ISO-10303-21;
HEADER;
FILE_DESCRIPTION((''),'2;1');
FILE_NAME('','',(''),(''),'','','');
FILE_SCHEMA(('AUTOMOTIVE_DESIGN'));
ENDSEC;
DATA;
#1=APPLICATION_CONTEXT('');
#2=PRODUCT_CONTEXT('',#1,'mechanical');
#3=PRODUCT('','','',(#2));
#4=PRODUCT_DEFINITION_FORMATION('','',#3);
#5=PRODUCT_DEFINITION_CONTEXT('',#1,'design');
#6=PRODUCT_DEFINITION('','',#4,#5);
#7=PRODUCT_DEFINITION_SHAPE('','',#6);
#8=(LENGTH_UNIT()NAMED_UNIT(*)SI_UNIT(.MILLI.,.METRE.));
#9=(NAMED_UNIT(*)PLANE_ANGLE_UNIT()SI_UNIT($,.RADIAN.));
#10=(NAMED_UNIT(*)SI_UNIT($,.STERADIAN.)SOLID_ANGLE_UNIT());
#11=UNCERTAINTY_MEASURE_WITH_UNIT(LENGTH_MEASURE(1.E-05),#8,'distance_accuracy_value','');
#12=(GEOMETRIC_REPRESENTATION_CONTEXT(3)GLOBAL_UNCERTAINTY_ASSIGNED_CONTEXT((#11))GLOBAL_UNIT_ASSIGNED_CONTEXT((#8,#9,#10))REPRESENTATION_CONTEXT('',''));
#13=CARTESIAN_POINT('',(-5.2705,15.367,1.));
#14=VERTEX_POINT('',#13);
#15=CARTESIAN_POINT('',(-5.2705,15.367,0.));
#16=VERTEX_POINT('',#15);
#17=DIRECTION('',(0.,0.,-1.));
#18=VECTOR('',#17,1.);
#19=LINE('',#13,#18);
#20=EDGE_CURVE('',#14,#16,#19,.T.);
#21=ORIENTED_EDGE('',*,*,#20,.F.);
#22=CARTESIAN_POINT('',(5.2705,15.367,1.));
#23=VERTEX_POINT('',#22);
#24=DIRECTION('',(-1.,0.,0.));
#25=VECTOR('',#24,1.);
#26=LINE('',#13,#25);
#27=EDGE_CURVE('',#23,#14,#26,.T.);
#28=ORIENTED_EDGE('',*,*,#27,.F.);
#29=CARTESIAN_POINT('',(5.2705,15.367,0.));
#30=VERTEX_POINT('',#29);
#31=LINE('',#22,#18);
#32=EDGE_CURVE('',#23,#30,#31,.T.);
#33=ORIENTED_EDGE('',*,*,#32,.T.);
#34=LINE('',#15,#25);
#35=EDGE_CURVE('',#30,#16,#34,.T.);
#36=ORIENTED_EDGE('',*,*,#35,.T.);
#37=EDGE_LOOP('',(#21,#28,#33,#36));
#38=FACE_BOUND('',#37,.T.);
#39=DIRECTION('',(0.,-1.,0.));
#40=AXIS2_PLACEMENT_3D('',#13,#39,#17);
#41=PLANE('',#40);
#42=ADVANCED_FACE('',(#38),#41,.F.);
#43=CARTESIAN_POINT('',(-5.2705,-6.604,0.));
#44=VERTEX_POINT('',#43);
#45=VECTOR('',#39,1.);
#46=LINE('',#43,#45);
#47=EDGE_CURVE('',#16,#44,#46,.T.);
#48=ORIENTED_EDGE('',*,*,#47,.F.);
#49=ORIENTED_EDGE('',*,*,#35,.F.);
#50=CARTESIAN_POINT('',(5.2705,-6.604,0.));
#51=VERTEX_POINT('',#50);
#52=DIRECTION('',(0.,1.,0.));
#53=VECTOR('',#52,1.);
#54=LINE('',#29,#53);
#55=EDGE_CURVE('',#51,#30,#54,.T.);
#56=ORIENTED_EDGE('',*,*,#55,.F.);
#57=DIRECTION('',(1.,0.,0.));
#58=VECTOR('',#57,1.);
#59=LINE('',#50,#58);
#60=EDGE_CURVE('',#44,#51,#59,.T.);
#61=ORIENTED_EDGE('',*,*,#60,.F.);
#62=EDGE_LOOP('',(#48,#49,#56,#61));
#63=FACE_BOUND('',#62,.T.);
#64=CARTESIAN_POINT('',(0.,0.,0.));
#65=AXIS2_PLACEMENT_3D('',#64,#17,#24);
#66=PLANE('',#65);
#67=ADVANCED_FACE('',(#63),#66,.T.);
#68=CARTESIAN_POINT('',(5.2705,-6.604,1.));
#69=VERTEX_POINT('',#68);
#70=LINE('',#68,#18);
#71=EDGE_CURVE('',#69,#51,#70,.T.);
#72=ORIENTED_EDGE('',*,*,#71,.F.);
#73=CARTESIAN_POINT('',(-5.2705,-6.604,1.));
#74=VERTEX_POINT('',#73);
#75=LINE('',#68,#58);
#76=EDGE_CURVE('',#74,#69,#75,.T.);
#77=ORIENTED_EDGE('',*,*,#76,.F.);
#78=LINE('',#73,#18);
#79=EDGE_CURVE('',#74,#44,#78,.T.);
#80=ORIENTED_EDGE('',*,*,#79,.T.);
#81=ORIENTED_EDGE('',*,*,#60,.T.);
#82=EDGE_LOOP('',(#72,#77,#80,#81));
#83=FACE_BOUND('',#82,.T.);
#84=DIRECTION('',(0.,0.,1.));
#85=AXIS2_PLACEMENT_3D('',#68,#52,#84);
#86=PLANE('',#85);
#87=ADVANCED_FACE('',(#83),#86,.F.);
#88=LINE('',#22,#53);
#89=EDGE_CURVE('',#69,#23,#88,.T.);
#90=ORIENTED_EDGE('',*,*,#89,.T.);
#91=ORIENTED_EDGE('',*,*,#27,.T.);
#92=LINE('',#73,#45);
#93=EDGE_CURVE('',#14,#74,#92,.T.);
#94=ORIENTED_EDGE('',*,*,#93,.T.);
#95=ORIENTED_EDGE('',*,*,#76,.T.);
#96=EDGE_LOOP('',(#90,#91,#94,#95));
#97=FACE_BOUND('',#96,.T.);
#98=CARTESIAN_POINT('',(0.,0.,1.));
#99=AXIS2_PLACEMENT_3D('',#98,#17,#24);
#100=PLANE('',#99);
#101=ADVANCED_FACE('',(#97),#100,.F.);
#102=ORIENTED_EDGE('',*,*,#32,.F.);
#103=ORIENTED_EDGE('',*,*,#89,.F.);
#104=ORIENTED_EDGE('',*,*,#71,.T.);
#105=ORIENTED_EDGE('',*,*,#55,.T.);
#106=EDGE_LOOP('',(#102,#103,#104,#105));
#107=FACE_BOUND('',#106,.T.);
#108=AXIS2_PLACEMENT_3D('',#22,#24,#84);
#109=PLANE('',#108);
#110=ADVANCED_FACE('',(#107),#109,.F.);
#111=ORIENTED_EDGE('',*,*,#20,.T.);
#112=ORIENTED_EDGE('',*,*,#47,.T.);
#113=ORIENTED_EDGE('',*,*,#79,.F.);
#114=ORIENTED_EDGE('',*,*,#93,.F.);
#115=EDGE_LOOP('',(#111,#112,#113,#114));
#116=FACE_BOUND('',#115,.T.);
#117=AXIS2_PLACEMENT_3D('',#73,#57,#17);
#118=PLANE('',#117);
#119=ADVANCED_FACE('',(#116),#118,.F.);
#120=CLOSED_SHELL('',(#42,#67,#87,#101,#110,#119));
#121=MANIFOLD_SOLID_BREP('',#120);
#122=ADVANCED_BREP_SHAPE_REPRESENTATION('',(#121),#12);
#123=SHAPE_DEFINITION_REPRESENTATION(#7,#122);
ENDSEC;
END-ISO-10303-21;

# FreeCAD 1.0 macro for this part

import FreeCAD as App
import Part
import Sketcher

V = App.Vector
Q = App.Units.Quantity


def add_polygon(sketch, points):
    """Adds a closed chain of lines whose ends are joined by coincident constraints."""
    first, n = sketch.GeometryCount, len(points)
    for a, b in zip(points, points[1:] + points[:1]):
        sketch.addGeometry(Part.LineSegment(App.Vector(*a, 0), App.Vector(*b, 0)), False)
    for i in range(n):
        sketch.addConstraint(Sketcher.Constraint("Coincident", first + i, 2, first + (i + 1) % n, 1))

doc = App.newDocument("Part")
params = doc.addObject("Spreadsheet::Sheet", "Params")
for row, (alias, value) in enumerate([
    ("sketch1_width", "0.415 in"),
    ("sketch1_height", "0.865 in"),
    ("pad1_length", "1 mm"),
], start=1):
    params.set(f"A{row}", alias)
    params.set(f"B{row}", "=" + value)
    params.setAlias(f"B{row}", alias)

body = doc.addObject("PartDesign::Body", "Body")

# Sketch on XY plane
sketch1 = body.newObject("Sketcher::SketchObject", "Sketch")
sketch1.AttachmentSupport = (doc.getObject("XY_Plane"), [""])
sketch1.MapMode = "FlatFace"
add_polygon(sketch1, [(-5.2705, 15.367), (-5.2705, -6.604), (5.2705, -6.604), (5.2705, 15.367)])  # lines 0-3
sketch1.addConstraint([
    Sketcher.Constraint("Vertical", 0),
    Sketcher.Constraint("Horizontal", 1),
    Sketcher.Constraint("Vertical", 2),
    Sketcher.Constraint("Horizontal", 3),
    Sketcher.Constraint("DistanceX", 1, 1, 1, 2, Q("0.415 in")),
    Sketcher.Constraint("DistanceY", 0, 2, 0, 1, Q("0.865 in")),
    Sketcher.Constraint("DistanceY", 0, 2, -1, 1, Q("0.26 in")),
    Sketcher.Constraint("DistanceX", 0, 2, -1, 1, Q("0.2075 in")),
])
sketch1.setExpression("Constraints[8]", "Params.sketch1_width")
sketch1.setExpression("Constraints[9]", "Params.sketch1_height")
pad1 = body.newObject("PartDesign::Pad", "Pad")
pad1.Profile = sketch1
pad1.setExpression("Length", "Params.pad1_length")

doc.recompute()
